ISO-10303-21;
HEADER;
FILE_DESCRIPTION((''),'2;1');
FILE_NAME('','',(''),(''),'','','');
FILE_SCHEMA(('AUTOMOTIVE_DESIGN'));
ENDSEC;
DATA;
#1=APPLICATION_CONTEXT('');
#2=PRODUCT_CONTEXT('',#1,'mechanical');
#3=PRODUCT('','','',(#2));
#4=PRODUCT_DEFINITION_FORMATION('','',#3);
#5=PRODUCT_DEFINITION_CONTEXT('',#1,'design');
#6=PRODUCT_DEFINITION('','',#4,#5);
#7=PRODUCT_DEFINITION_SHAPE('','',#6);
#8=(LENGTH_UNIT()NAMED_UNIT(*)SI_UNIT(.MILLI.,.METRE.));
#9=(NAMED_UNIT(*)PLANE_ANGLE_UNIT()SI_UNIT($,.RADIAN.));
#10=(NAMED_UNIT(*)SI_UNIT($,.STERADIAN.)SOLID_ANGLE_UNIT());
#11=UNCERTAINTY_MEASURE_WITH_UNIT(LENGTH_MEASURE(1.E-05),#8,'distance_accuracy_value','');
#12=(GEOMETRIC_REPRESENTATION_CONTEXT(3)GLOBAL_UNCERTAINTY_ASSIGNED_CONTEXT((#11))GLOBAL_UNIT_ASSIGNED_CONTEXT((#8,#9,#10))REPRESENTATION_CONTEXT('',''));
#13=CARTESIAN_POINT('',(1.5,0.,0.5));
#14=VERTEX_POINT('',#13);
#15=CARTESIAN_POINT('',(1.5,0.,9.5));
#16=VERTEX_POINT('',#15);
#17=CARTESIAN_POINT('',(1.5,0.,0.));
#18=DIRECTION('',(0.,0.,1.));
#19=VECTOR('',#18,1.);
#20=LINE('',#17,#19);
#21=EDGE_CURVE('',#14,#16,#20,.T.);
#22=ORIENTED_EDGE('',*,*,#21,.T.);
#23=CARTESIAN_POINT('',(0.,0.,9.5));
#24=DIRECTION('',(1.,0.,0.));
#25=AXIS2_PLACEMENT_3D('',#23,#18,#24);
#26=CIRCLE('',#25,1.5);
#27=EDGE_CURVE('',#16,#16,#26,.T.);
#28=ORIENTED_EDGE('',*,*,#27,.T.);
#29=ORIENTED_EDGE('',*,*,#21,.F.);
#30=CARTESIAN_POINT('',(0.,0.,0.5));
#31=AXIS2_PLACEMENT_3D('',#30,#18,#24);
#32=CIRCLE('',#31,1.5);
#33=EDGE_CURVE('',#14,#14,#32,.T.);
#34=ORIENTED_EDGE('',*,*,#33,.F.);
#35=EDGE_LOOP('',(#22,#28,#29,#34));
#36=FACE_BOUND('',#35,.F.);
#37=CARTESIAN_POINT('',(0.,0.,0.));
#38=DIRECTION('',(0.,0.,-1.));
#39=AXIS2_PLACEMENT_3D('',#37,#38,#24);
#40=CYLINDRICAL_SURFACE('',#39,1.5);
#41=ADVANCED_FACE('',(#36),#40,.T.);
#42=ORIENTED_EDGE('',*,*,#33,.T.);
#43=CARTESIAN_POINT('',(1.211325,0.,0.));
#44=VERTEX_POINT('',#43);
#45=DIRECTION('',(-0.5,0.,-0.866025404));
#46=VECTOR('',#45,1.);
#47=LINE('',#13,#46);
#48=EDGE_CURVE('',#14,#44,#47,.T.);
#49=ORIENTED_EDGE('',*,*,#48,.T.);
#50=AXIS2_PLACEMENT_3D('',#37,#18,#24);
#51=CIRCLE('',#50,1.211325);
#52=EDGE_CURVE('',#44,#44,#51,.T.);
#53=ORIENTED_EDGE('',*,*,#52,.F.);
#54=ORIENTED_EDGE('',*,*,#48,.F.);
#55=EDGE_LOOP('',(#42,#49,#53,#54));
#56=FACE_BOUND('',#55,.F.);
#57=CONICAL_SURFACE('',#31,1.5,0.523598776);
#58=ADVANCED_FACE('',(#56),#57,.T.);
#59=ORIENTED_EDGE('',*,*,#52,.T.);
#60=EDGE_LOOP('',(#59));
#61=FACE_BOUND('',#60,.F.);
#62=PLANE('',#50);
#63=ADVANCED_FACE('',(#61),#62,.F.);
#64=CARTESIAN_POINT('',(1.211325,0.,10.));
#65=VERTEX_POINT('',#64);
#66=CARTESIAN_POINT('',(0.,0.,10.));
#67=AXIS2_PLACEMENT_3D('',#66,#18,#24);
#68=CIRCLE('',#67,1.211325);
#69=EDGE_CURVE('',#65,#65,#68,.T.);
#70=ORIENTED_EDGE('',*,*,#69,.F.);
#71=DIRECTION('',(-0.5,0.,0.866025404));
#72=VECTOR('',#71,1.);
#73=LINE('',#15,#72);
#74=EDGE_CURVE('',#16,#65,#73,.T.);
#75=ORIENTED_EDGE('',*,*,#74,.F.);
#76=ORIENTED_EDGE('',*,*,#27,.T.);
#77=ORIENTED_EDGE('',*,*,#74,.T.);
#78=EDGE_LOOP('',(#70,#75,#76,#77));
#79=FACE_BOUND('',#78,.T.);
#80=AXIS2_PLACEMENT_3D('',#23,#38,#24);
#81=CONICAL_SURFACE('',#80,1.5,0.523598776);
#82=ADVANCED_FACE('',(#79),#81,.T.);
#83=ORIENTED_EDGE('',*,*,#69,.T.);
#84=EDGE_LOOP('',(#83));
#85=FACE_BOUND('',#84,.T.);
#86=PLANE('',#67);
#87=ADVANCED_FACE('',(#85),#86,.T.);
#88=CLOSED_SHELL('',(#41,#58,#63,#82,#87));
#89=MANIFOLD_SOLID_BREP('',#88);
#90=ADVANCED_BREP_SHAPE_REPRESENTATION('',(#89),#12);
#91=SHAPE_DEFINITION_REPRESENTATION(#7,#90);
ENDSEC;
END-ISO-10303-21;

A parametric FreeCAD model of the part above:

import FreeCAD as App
import Part
import Sketcher
from FreeCAD import Vector


def edges_at(feature, points):
    """Names of the edges that pass closest to the given points."""
    edges = feature.Shape.Edges
    near = lambda p: min(range(len(edges)), key=lambda i: edges[i].distToShape(Part.Vertex(*p))[0])
    return sorted({f"Edge{near(p) + 1}" for p in points})

doc = App.newDocument("Part")
body = doc.addObject("PartDesign::Body", "Body")

# Sketch on XY plane
sketch1 = body.newObject("Sketcher::SketchObject", "Sketch")
sketch1.AttachmentSupport = (doc.getObject("XY_Plane"), [""])
sketch1.MapMode = "FlatFace"
sketch1.addGeometry(Part.Circle(Vector(0, 0, 0), Vector(0, 0, 1), 1.5), False)
sketch1.addConstraint([
    Sketcher.Constraint("Coincident", 0, 3, -1, 1),
    Sketcher.Constraint("Diameter", 0, 3.0),
])
pad1 = body.newObject("PartDesign::Pad", "Pad")
pad1.Profile = sketch1
pad1.Length = 10
doc.recompute()

chamfer = body.newObject("PartDesign::Chamfer", "Chamfer")
chamfer.Base = (pad1, edges_at(pad1, [(-1.5, 0, 10), (-1.5, 0, 0)]))
chamfer.ChamferType = "Distance and Angle"
chamfer.Size = 0.5
chamfer.Angle = 30

doc.recompute()
